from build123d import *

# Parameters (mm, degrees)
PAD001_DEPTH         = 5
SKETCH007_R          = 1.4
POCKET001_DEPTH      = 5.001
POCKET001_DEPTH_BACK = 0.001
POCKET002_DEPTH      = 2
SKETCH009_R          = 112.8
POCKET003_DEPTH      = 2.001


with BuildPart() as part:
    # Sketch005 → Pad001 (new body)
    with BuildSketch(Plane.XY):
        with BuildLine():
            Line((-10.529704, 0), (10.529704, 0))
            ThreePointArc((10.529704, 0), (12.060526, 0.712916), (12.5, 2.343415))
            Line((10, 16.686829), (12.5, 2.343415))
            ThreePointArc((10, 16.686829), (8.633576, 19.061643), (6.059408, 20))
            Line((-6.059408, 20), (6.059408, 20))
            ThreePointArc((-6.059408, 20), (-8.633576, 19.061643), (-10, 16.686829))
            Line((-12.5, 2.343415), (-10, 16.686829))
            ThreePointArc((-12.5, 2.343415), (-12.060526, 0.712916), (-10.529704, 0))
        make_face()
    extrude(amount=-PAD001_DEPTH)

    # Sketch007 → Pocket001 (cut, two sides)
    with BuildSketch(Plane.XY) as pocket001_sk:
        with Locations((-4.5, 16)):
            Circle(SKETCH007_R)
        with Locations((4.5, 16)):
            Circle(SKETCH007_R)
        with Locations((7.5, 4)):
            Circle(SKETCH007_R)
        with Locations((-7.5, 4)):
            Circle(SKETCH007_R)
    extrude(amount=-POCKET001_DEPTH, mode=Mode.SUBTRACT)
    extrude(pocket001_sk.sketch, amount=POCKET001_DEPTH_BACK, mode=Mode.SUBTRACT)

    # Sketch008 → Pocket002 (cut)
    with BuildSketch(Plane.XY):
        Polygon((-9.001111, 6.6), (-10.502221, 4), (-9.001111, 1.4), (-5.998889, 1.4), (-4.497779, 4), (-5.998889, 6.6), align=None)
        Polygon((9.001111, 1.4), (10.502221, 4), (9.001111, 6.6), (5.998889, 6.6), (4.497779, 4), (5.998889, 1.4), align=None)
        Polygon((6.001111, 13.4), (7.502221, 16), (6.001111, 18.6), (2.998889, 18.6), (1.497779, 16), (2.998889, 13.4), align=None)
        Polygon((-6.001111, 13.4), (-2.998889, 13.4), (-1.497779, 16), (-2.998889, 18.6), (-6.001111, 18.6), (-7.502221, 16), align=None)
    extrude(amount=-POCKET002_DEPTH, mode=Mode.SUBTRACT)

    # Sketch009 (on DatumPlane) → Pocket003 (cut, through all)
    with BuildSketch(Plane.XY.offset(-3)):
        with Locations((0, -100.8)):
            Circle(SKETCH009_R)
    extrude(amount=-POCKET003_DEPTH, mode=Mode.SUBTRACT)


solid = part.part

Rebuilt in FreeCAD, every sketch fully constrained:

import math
import FreeCAD as App
import Part
import Sketcher
from FreeCAD import Vector
Q = App.Units.Quantity


def add_polygon(sketch, points):
    """Adds a closed chain of lines whose ends are joined by coincident constraints."""
    first, n = sketch.GeometryCount, len(points)
    for a, b in zip(points, points[1:] + points[:1]):
        sketch.addGeometry(Part.LineSegment(App.Vector(*a, 0), App.Vector(*b, 0)), False)
    for i in range(n):
        sketch.addConstraint(Sketcher.Constraint("Coincident", first + i, 2, first + (i + 1) % n, 1))

doc = App.newDocument("Part")
body = doc.addObject("PartDesign::Body", "Body")

# Sketch on XY plane
sketch1 = body.newObject("Sketcher::SketchObject", "Sketch")
sketch1.AttachmentSupport = (doc.getObject("XY_Plane"), [""])
sketch1.MapMode = "FlatFace"
sketch1.addGeometry(Part.LineSegment(Vector(-10.5, 0, 0), Vector(10.5, 0, 0)), False)
sketch1.addGeometry(Part.ArcOfCircle(Part.Circle(Vector(10.5, 2, 0), Vector(0, 0, 1), 2), math.radians(-90), math.radians(10)), False)
sketch1.addGeometry(Part.LineSegment(Vector(12.5, 2.3, 0), Vector(10, 16.7, 0)), False)
sketch1.addGeometry(Part.ArcOfCircle(Part.Circle(Vector(6.1, 16, 0), Vector(0, 0, 1), 4), math.radians(10), math.radians(90)), False)
sketch1.addGeometry(Part.LineSegment(Vector(6.1, 20, 0), Vector(-6.1, 20, 0)), False)
sketch1.addGeometry(Part.ArcOfCircle(Part.Circle(Vector(-6.1, 16, 0), Vector(0, 0, 1), 4), math.radians(90), math.radians(170)), False)
sketch1.addGeometry(Part.LineSegment(Vector(-10, 16.7, 0), Vector(-12.5, 2.3, 0)), False)
sketch1.addGeometry(Part.ArcOfCircle(Part.Circle(Vector(-10.5, 2, 0), Vector(0, 0, 1), 2), math.radians(170), math.radians(270)), False)
sketch1.addConstraint(Sketcher.Constraint("Tangent", 0, 2, 1, 1))
sketch1.addConstraint(Sketcher.Constraint("Tangent", 1, 2, 2, 1))
sketch1.addConstraint(Sketcher.Constraint("Tangent", 2, 2, 3, 1))
sketch1.addConstraint(Sketcher.Constraint("Tangent", 3, 2, 4, 1))
sketch1.addConstraint(Sketcher.Constraint("Tangent", 4, 2, 5, 1))
sketch1.addConstraint(Sketcher.Constraint("Tangent", 5, 2, 6, 1))
sketch1.addConstraint(Sketcher.Constraint("Tangent", 6, 2, 7, 1))
sketch1.addConstraint(Sketcher.Constraint("Tangent", 7, 2, 0, 1))
sketch1.addConstraint(Sketcher.Constraint("Horizontal", 0))
sketch1.addConstraint(Sketcher.Constraint("Horizontal", 4))
sketch1.addConstraint(Sketcher.Constraint("Equal", 3, 5))
sketch1.addConstraint(Sketcher.Constraint("Equal", 1, 7))
sketch1.addConstraint(Sketcher.Constraint("Symmetric", 0, 2, 7, 2, -1, 1))
sketch1.addConstraint(Sketcher.Constraint("Horizontal", 2, 2, 5, 2))
sketch1.addConstraint(Sketcher.Constraint("Radius", 1, 2.0))
sketch1.addConstraint(Sketcher.Constraint("Radius", 3, 4.0))
sketch1.addConstraint(Sketcher.Constraint("DistanceY", -1, 1, 3, 3, 16.0))
sketch1.addConstraint(Sketcher.Constraint("DistanceX", -1, 1, 2, 2, 10.0))
sketch1.addConstraint(Sketcher.Constraint("DistanceX", -1, 1, 1, 2, 12.5))
pad1 = body.newObject("PartDesign::Pad", "Pad")
pad1.Profile = sketch1
pad1.Length = 5
pad1.Reversed = True

# Sketch on XY plane
sketch2 = body.newObject("Sketcher::SketchObject", "Sketch001")
sketch2.AttachmentSupport = (doc.getObject("XY_Plane"), [""])
sketch2.MapMode = "FlatFace"
sketch2.addGeometry(Part.Circle(Vector(-4.5, 16, 0), Vector(0, 0, 1), 1.4), False)
sketch2.addGeometry(Part.Circle(Vector(4.5, 16, 0), Vector(0, 0, 1), 1.4), False)
sketch2.addGeometry(Part.Circle(Vector(7.5, 4, 0), Vector(0, 0, 1), 1.4), False)
sketch2.addGeometry(Part.Circle(Vector(-7.5, 4, 0), Vector(0, 0, 1), 1.4), False)
sketch2.addConstraint(Sketcher.Constraint("Equal", 0, 1))
sketch2.addConstraint(Sketcher.Constraint("Equal", 1, 2))
sketch2.addConstraint(Sketcher.Constraint("Equal", 2, 3))
sketch2.addConstraint(Sketcher.Constraint("Symmetric", 0, 3, 1, 3, -2))
sketch2.addConstraint(Sketcher.Constraint("Symmetric", 2, 3, 3, 3, -2))
sketch2.addConstraint(Sketcher.Constraint("Diameter", 0, 2.8))
sketch2.addConstraint(Sketcher.Constraint("DistanceY", -1, 1, 0, 3, 16.0))
sketch2.addConstraint(Sketcher.Constraint("DistanceY", -1, 1, 2, 3, 4.0))
sketch2.addConstraint(Sketcher.Constraint("DistanceX", 0, 3, 1, 3, 9.0))
sketch2.addConstraint(Sketcher.Constraint("DistanceX", 1, 3, 2, 3, 3.0))
pocket1 = body.newObject("PartDesign::Pocket", "Pocket")
pocket1.Profile = sketch2
pocket1.Type = "ThroughAll"
pocket1.Midplane = True

# Sketch on XY plane
sketch3 = body.newObject("Sketcher::SketchObject", "Sketch002")
sketch3.AttachmentSupport = (doc.getObject("XY_Plane"), [""])
sketch3.MapMode = "FlatFace"
add_polygon(sketch3, [(-9, 6.6), (-10.5, 4), (-9, 1.4), (-6, 1.4), (-4.5, 4), (-6, 6.6)])  # lines 0-5
add_polygon(sketch3, [(9, 1.4), (10.5, 4), (9, 6.6), (6, 6.6), (4.5, 4), (6, 1.4)])  # lines 6-11
add_polygon(sketch3, [(6, 13.4), (7.5, 16), (6, 18.6), (3, 18.6), (1.5, 16), (3, 13.4)])  # lines 12-17
add_polygon(sketch3, [(-6, 13.4), (-3, 13.4), (-1.5, 16), (-3, 18.6), (-6, 18.6), (-7.5, 16)])  # lines 18-23
sketch3.addConstraint(Sketcher.Constraint("Horizontal", 2))
sketch3.addConstraint(Sketcher.Constraint("Horizontal", 5))
sketch3.addConstraint(Sketcher.Constraint("Horizontal", 8))
sketch3.addConstraint(Sketcher.Constraint("Horizontal", 11))
sketch3.addConstraint(Sketcher.Constraint("Horizontal", 14))
sketch3.addConstraint(Sketcher.Constraint("Horizontal", 17))
sketch3.addConstraint(Sketcher.Constraint("Horizontal", 18))
sketch3.addConstraint(Sketcher.Constraint("Horizontal", 21))
sketch3.addConstraint(Sketcher.Constraint("Symmetric", 0, 2, 6, 2, -2))
sketch3.addConstraint(Sketcher.Constraint("Symmetric", 5, 2, 7, 2, -2))
sketch3.addConstraint(Sketcher.Constraint("Symmetric", 3, 2, 9, 2, -2))
sketch3.addConstraint(Sketcher.Constraint("Symmetric", 2, 2, 10, 2, -2))
sketch3.addConstraint(Sketcher.Constraint("Symmetric", 16, 2, 18, 2, -2))
sketch3.addConstraint(Sketcher.Constraint("Symmetric", 15, 2, 19, 2, -2))
sketch3.addConstraint(Sketcher.Constraint("Symmetric", 14, 2, 20, 2, -2))
sketch3.addConstraint(Sketcher.Constraint("Symmetric", 12, 2, 22, 2, -2))
sketch3.addConstraint(Sketcher.Constraint("Parallel", 0, 3))
sketch3.addConstraint(Sketcher.Constraint("Parallel", 1, 4))
sketch3.addConstraint(Sketcher.Constraint("Parallel", 3, 6))
sketch3.addConstraint(Sketcher.Constraint("Parallel", 4, 7))
sketch3.addConstraint(Sketcher.Constraint("Parallel", 6, 9))
sketch3.addConstraint(Sketcher.Constraint("Parallel", 9, 12))
sketch3.addConstraint(Sketcher.Constraint("Parallel", 10, 13))
sketch3.addConstraint(Sketcher.Constraint("Parallel", 12, 15))
sketch3.addConstraint(Sketcher.Constraint("Parallel", 13, 16))
sketch3.addConstraint(Sketcher.Constraint("Parallel", 19, 22))
sketch3.addConstraint(Sketcher.Constraint("Parallel", 20, 23))
sketch3.addConstraint(Sketcher.Constraint("Horizontal", 0, 2, 3, 2))
sketch3.addConstraint(Sketcher.Constraint("Horizontal", 12, 2, 15, 2))
sketch3.addConstraint(Sketcher.Constraint("Vertical", 2, 2, 4, 2))
sketch3.addConstraint(Sketcher.Constraint("Vertical", 14, 2, 16, 2))
sketch3.addConstraint(Sketcher.Constraint("Equal", 11, 14))
sketch3.addConstraint(Sketcher.Constraint("Equal", 10, 12))
sketch3.addConstraint(Sketcher.Constraint("Angle", 0, Q("-119.999988 deg")))
sketch3.addConstraint(Sketcher.Constraint("DistanceY", -1, 1, 0, 2, 4.0))
sketch3.addConstraint(Sketcher.Constraint("DistanceY", -1, 1, 12, 2, 16.0))
sketch3.addConstraint(Sketcher.Constraint("DistanceX", 3, 2, 6, 2, 15.0))
sketch3.addConstraint(Sketcher.Constraint("DistanceX", 12, 2, 6, 2, 3.0))
sketch3.addConstraint(Sketcher.Constraint("DistanceY", -1, 1, 1, 2, 1.4))
sketch3.addConstraint(Sketcher.Constraint("DistanceX", 2, 1, 2, 2, 3.002222))
pocket2 = body.newObject("PartDesign::Pocket", "Pocket001")
pocket2.Profile = sketch3
pocket2.Length = 2

# Sketch on XY plane
sketch4 = body.newObject("Sketcher::SketchObject", "Sketch003")
sketch4.AttachmentSupport = (doc.getObject("XY_Plane"), [""])
sketch4.MapMode = "FlatFace"
sketch4.AttachmentOffset = App.Placement(Vector(0, 0, -3), App.Rotation())
sketch4.addGeometry(Part.Circle(Vector(0, -101, 0), Vector(0, 0, 1), 113), False)
sketch4.addConstraint(Sketcher.Constraint("PointOnObject", 0, 3, -2))
sketch4.addConstraint(Sketcher.Constraint("Diameter", 0, 225.6))
sketch4.addConstraint(Sketcher.Constraint("DistanceY", 0, 3, -1, 1, 100.8))
pocket3 = body.newObject("PartDesign::Pocket", "Pocket002")
pocket3.Profile = sketch4
pocket3.Type = "ThroughAll"

doc.recompute()
